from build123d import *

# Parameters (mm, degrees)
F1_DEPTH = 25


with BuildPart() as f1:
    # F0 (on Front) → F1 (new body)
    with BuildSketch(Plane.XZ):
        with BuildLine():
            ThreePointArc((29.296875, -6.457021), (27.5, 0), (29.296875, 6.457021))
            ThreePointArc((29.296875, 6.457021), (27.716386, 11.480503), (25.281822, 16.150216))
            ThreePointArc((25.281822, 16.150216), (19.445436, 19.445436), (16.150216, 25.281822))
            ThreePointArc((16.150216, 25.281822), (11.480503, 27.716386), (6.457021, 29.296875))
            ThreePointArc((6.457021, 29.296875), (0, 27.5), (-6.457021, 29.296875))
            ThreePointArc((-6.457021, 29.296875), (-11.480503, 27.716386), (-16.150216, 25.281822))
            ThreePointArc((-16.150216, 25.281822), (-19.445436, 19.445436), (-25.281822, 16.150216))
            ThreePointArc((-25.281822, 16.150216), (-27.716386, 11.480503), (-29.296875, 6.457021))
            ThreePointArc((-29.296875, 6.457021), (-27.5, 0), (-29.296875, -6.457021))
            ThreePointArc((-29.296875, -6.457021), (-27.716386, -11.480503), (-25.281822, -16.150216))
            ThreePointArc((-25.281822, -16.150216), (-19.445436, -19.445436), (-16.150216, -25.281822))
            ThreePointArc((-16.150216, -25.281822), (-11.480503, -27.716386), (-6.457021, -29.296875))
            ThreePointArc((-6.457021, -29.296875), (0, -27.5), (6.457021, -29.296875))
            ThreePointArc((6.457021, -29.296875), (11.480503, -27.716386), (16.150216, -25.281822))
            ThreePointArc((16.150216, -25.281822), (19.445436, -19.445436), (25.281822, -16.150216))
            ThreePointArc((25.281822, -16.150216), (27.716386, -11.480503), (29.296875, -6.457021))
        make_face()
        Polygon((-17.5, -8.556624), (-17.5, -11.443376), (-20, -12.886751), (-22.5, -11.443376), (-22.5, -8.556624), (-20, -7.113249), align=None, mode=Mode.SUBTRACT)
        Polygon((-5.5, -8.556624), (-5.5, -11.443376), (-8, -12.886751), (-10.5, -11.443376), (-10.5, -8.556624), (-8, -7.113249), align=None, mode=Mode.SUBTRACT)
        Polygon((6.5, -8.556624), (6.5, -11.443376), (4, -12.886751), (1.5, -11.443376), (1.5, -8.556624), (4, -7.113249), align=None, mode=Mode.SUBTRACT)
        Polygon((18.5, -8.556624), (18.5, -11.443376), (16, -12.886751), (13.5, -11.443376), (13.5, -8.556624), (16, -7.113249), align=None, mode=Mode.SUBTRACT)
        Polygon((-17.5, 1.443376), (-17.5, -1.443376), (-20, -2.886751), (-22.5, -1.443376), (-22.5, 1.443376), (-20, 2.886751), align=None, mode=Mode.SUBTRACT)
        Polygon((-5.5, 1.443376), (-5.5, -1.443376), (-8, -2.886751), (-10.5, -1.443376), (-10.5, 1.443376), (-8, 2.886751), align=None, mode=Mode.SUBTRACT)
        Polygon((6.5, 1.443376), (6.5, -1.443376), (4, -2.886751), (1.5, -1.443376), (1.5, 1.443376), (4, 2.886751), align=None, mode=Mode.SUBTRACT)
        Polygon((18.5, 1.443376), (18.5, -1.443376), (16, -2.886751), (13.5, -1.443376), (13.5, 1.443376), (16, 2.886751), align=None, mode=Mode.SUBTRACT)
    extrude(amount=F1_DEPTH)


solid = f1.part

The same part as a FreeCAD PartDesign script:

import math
import FreeCAD as App
import Part
import Sketcher
from FreeCAD import Vector
Q = App.Units.Quantity

doc = App.newDocument("Part")
body = doc.addObject("PartDesign::Body", "Body")

sketch1 = body.newObject("Sketcher::SketchObject", "Sketch")
sketch1.AttachmentSupport = (doc.getObject("XZ_Plane"), [""])
sketch1.MapMode = "FlatFace"
sketch1.addGeometry([
    Part.ArcOfCircle(Part.Circle(Vector(40.000001, 0, 0), Vector(0, 0, 1), 12.500001), math.radians(148.898107), math.radians(211.101893)),
    Part.ArcOfCircle(Part.Circle(Vector(-0.000001, 0, 0), Vector(0, 0, 1), 30.000001), math.radians(12.429258), math.radians(32.570743)),
    Part.ArcOfCircle(Part.Circle(Vector(28.284268, 28.284268, 0), Vector(0, 0, 1), 12.499995), math.radians(-166.101907), math.radians(-103.898093)),
    Part.ArcOfCircle(Part.Circle(Vector(0, -0.000001, 0), Vector(0, 0, 1), 30.000001), math.radians(57.429257), math.radians(77.570742)),
    Part.ArcOfCircle(Part.Circle(Vector(0, 40.000001, 0), Vector(0, 0, 1), 12.500001), math.radians(-121.101893), math.radians(-58.898107)),
    Part.ArcOfCircle(Part.Circle(Vector(0, -0.000001, 0), Vector(0, 0, 1), 30.000001), math.radians(102.429258), math.radians(122.570743)),
    Part.ArcOfCircle(Part.Circle(Vector(-28.284268, 28.284268, 0), Vector(0, 0, 1), 12.499995), math.radians(-76.101907), math.radians(-13.898093)),
    Part.ArcOfCircle(Part.Circle(Vector(0.000001, 0, 0), Vector(0, 0, 1), 30.000001), math.radians(147.429257), math.radians(167.570742)),
    Part.ArcOfCircle(Part.Circle(Vector(-40.000001, 0, 0), Vector(0, 0, 1), 12.500001), math.radians(-31.101893), math.radians(31.101893)),
    Part.ArcOfCircle(Part.Circle(Vector(0.000001, 0, 0), Vector(0, 0, 1), 30.000001), math.radians(-167.570742), math.radians(-147.429257)),
    Part.ArcOfCircle(Part.Circle(Vector(-28.284268, -28.284268, 0), Vector(0, 0, 1), 12.499995), math.radians(13.898093), math.radians(76.101907)),
    Part.ArcOfCircle(Part.Circle(Vector(0, 0.000001, 0), Vector(0, 0, 1), 30.000001), math.radians(-122.570743), math.radians(-102.429258)),
    Part.ArcOfCircle(Part.Circle(Vector(0, -40.000001, 0), Vector(0, 0, 1), 12.500001), math.radians(58.898107), math.radians(121.101893)),
    Part.ArcOfCircle(Part.Circle(Vector(0, 0.000001, 0), Vector(0, 0, 1), 30.000001), math.radians(-77.570742), math.radians(-57.429257)),
    Part.ArcOfCircle(Part.Circle(Vector(28.284268, -28.284268, 0), Vector(0, 0, 1), 12.499995), math.radians(103.898093), math.radians(166.101907)),
    Part.ArcOfCircle(Part.Circle(Vector(-0.000001, 0, 0), Vector(0, 0, 1), 30.000001), math.radians(-32.570743), math.radians(-12.429258)),
    Part.LineSegment(Vector(-20, -7.113249, 0), Vector(-17.5, -8.556624, 0)),
    Part.LineSegment(Vector(-17.5, -8.556624, 0), Vector(-17.5, -11.443376, 0)),
    Part.LineSegment(Vector(-17.5, -11.443376, 0), Vector(-20, -12.886751, 0)),
    Part.LineSegment(Vector(-20, -12.886751, 0), Vector(-22.5, -11.443376, 0)),
    Part.LineSegment(Vector(-22.5, -11.443376, 0), Vector(-22.5, -8.556624, 0)),
    Part.LineSegment(Vector(-22.5, -8.556624, 0), Vector(-20, -7.113249, 0)),
    Part.LineSegment(Vector(-8, -7.113249, 0), Vector(-5.5, -8.556624, 0)),
    Part.LineSegment(Vector(-5.5, -8.556624, 0), Vector(-5.5, -11.443376, 0)),
    Part.LineSegment(Vector(-5.5, -11.443376, 0), Vector(-8, -12.886751, 0)),
    Part.LineSegment(Vector(-8, -12.886751, 0), Vector(-10.5, -11.443376, 0)),
    Part.LineSegment(Vector(-10.5, -11.443376, 0), Vector(-10.5, -8.556624, 0)),
    Part.LineSegment(Vector(-10.5, -8.556624, 0), Vector(-8, -7.113249, 0)),
    Part.LineSegment(Vector(4, -7.113249, 0), Vector(6.5, -8.556624, 0)),
    Part.LineSegment(Vector(6.5, -8.556624, 0), Vector(6.5, -11.443376, 0)),
    Part.LineSegment(Vector(6.5, -11.443376, 0), Vector(4, -12.886751, 0)),
    Part.LineSegment(Vector(4, -12.886751, 0), Vector(1.5, -11.443376, 0)),
    Part.LineSegment(Vector(1.5, -11.443376, 0), Vector(1.5, -8.556624, 0)),
    Part.LineSegment(Vector(1.5, -8.556624, 0), Vector(4, -7.113249, 0)),
    Part.LineSegment(Vector(16, -7.113249, 0), Vector(18.5, -8.556624, 0)),
    Part.LineSegment(Vector(18.5, -8.556624, 0), Vector(18.5, -11.443376, 0)),
    Part.LineSegment(Vector(18.5, -11.443376, 0), Vector(16, -12.886751, 0)),
    Part.LineSegment(Vector(16, -12.886751, 0), Vector(13.5, -11.443376, 0)),
    Part.LineSegment(Vector(13.5, -11.443376, 0), Vector(13.5, -8.556624, 0)),
    Part.LineSegment(Vector(13.5, -8.556624, 0), Vector(16, -7.113249, 0)),
    Part.LineSegment(Vector(-20, 2.886751, 0), Vector(-17.5, 1.443376, 0)),
    Part.LineSegment(Vector(-17.5, 1.443376, 0), Vector(-17.5, -1.443376, 0)),
    Part.LineSegment(Vector(-17.5, -1.443376, 0), Vector(-20, -2.886751, 0)),
    Part.LineSegment(Vector(-20, -2.886751, 0), Vector(-22.5, -1.443376, 0)),
    Part.LineSegment(Vector(-22.5, -1.443376, 0), Vector(-22.5, 1.443376, 0)),
    Part.LineSegment(Vector(-22.5, 1.443376, 0), Vector(-20, 2.886751, 0)),
    Part.LineSegment(Vector(-8, 2.886751, 0), Vector(-5.5, 1.443376, 0)),
    Part.LineSegment(Vector(-5.5, 1.443376, 0), Vector(-5.5, -1.443376, 0)),
    Part.LineSegment(Vector(-5.5, -1.443376, 0), Vector(-8, -2.886751, 0)),
    Part.LineSegment(Vector(-8, -2.886751, 0), Vector(-10.5, -1.443376, 0)),
    Part.LineSegment(Vector(-10.5, -1.443376, 0), Vector(-10.5, 1.443376, 0)),
    Part.LineSegment(Vector(-10.5, 1.443376, 0), Vector(-8, 2.886751, 0)),
    Part.LineSegment(Vector(4, 2.886751, 0), Vector(6.5, 1.443376, 0)),
    Part.LineSegment(Vector(6.5, 1.443376, 0), Vector(6.5, -1.443376, 0)),
    Part.LineSegment(Vector(6.5, -1.443376, 0), Vector(4, -2.886751, 0)),
    Part.LineSegment(Vector(4, -2.886751, 0), Vector(1.5, -1.443376, 0)),
    Part.LineSegment(Vector(1.5, -1.443376, 0), Vector(1.5, 1.443376, 0)),
    Part.LineSegment(Vector(1.5, 1.443376, 0), Vector(4, 2.886751, 0)),
    Part.LineSegment(Vector(16, 2.886751, 0), Vector(18.5, 1.443376, 0)),
    Part.LineSegment(Vector(18.5, 1.443376, 0), Vector(18.5, -1.443376, 0)),
    Part.LineSegment(Vector(18.5, -1.443376, 0), Vector(16, -2.886751, 0)),
    Part.LineSegment(Vector(16, -2.886751, 0), Vector(13.5, -1.443376, 0)),
    Part.LineSegment(Vector(13.5, -1.443376, 0), Vector(13.5, 1.443376, 0)),
    Part.LineSegment(Vector(13.5, 1.443376, 0), Vector(16, 2.886751, 0)),
], False)
sketch1.addConstraint([
    Sketcher.Constraint("Coincident", 0, 1, 1, 1),
    Sketcher.Constraint("Coincident", 1, 2, 2, 2),
    Sketcher.Constraint("Coincident", 2, 1, 3, 1),
    Sketcher.Constraint("Coincident", 3, 2, 4, 2),
    Sketcher.Constraint("Coincident", 4, 1, 5, 1),
    Sketcher.Constraint("Coincident", 5, 2, 6, 2),
    Sketcher.Constraint("Coincident", 6, 1, 7, 1),
    Sketcher.Constraint("Coincident", 7, 2, 8, 2),
    Sketcher.Constraint("Coincident", 8, 1, 9, 1),
    Sketcher.Constraint("Coincident", 9, 2, 10, 2),
    Sketcher.Constraint("Coincident", 10, 1, 11, 1),
    Sketcher.Constraint("Coincident", 11, 2, 12, 2),
    Sketcher.Constraint("Coincident", 12, 1, 13, 1),
    Sketcher.Constraint("Coincident", 13, 2, 14, 2),
    Sketcher.Constraint("Coincident", 14, 1, 15, 1),
    Sketcher.Constraint("Coincident", 15, 2, 0, 2),
    Sketcher.Constraint("Coincident", 16, 2, 17, 1),
    Sketcher.Constraint("Coincident", 17, 2, 18, 1),
    Sketcher.Constraint("Coincident", 18, 2, 19, 1),
    Sketcher.Constraint("Coincident", 19, 2, 20, 1),
    Sketcher.Constraint("Coincident", 20, 2, 21, 1),
    Sketcher.Constraint("Coincident", 21, 2, 16, 1),
    Sketcher.Constraint("Coincident", 22, 2, 23, 1),
    Sketcher.Constraint("Coincident", 23, 2, 24, 1),
    Sketcher.Constraint("Coincident", 24, 2, 25, 1),
    Sketcher.Constraint("Coincident", 25, 2, 26, 1),
    Sketcher.Constraint("Coincident", 26, 2, 27, 1),
    Sketcher.Constraint("Coincident", 27, 2, 22, 1),
    Sketcher.Constraint("Coincident", 28, 2, 29, 1),
    Sketcher.Constraint("Coincident", 29, 2, 30, 1),
    Sketcher.Constraint("Coincident", 30, 2, 31, 1),
    Sketcher.Constraint("Coincident", 31, 2, 32, 1),
    Sketcher.Constraint("Coincident", 32, 2, 33, 1),
    Sketcher.Constraint("Coincident", 33, 2, 28, 1),
    Sketcher.Constraint("Coincident", 34, 2, 35, 1),
    Sketcher.Constraint("Coincident", 35, 2, 36, 1),
    Sketcher.Constraint("Coincident", 36, 2, 37, 1),
    Sketcher.Constraint("Coincident", 37, 2, 38, 1),
    Sketcher.Constraint("Coincident", 38, 2, 39, 1),
    Sketcher.Constraint("Coincident", 39, 2, 34, 1),
    Sketcher.Constraint("Coincident", 40, 2, 41, 1),
    Sketcher.Constraint("Coincident", 41, 2, 42, 1),
    Sketcher.Constraint("Coincident", 42, 2, 43, 1),
    Sketcher.Constraint("Coincident", 43, 2, 44, 1),
    Sketcher.Constraint("Coincident", 44, 2, 45, 1),
    Sketcher.Constraint("Coincident", 45, 2, 40, 1),
    Sketcher.Constraint("Coincident", 46, 2, 47, 1),
    Sketcher.Constraint("Coincident", 47, 2, 48, 1),
    Sketcher.Constraint("Coincident", 48, 2, 49, 1),
    Sketcher.Constraint("Coincident", 49, 2, 50, 1),
    Sketcher.Constraint("Coincident", 50, 2, 51, 1),
    Sketcher.Constraint("Coincident", 51, 2, 46, 1),
    Sketcher.Constraint("Coincident", 52, 2, 53, 1),
    Sketcher.Constraint("Coincident", 53, 2, 54, 1),
    Sketcher.Constraint("Coincident", 54, 2, 55, 1),
    Sketcher.Constraint("Coincident", 55, 2, 56, 1),
    Sketcher.Constraint("Coincident", 56, 2, 57, 1),
    Sketcher.Constraint("Coincident", 57, 2, 52, 1),
    Sketcher.Constraint("Coincident", 58, 2, 59, 1),
    Sketcher.Constraint("Coincident", 59, 2, 60, 1),
    Sketcher.Constraint("Coincident", 60, 2, 61, 1),
    Sketcher.Constraint("Coincident", 61, 2, 62, 1),
    Sketcher.Constraint("Coincident", 62, 2, 63, 1),
    Sketcher.Constraint("Coincident", 63, 2, 58, 1),
    Sketcher.Constraint("Vertical", 17),
    Sketcher.Constraint("Vertical", 20),
    Sketcher.Constraint("Vertical", 23),
    Sketcher.Constraint("Vertical", 26),
    Sketcher.Constraint("Vertical", 29),
    Sketcher.Constraint("Vertical", 32),
    Sketcher.Constraint("Vertical", 35),
    Sketcher.Constraint("Vertical", 38),
    Sketcher.Constraint("Vertical", 41),
    Sketcher.Constraint("Vertical", 44),
    Sketcher.Constraint("Vertical", 47),
    Sketcher.Constraint("Vertical", 50),
    Sketcher.Constraint("Vertical", 53),
    Sketcher.Constraint("Vertical", 56),
    Sketcher.Constraint("Vertical", 59),
    Sketcher.Constraint("Vertical", 62),
    Sketcher.Constraint("Coincident", 1, 3, -1, 1),
    Sketcher.Constraint("Coincident", 3, 3, -1, 1),
    Sketcher.Constraint("Coincident", 5, 3, -1, 1),
    Sketcher.Constraint("Coincident", 7, 3, -1, 1),
    Sketcher.Constraint("Coincident", 9, 3, -1, 1),
    Sketcher.Constraint("Coincident", 11, 3, -1, 1),
    Sketcher.Constraint("Coincident", 13, 3, -1, 1),
    Sketcher.Constraint("Coincident", 15, 3, -1, 1),
    Sketcher.Constraint("Equal", 1, 3),
    Sketcher.Constraint("Equal", 0, 4),
    Sketcher.Constraint("Equal", 3, 5),
    Sketcher.Constraint("Equal", 2, 6),
    Sketcher.Constraint("Equal", 5, 7),
    Sketcher.Constraint("Equal", 4, 8),
    Sketcher.Constraint("Equal", 7, 9),
    Sketcher.Constraint("Equal", 6, 10),
    Sketcher.Constraint("Equal", 9, 11),
    Sketcher.Constraint("Equal", 8, 12),
    Sketcher.Constraint("Equal", 11, 13),
    Sketcher.Constraint("Equal", 10, 14),
    Sketcher.Constraint("Equal", 13, 15),
    Sketcher.Constraint("Symmetric", 0, 3, 8, 3, -1, 1),
    Sketcher.Constraint("Symmetric", 2, 3, 10, 3, -1, 1),
    Sketcher.Constraint("Symmetric", 4, 3, 12, 3, -1, 1),
    Sketcher.Constraint("Symmetric", 6, 3, 14, 3, -1, 1),
    Sketcher.Constraint("Symmetric", 2, 3, 6, 3, -2),
    Sketcher.Constraint("Symmetric", 42, 2, 45, 2, -1),
    Sketcher.Constraint("Symmetric", 48, 2, 51, 2, -1),
    Sketcher.Constraint("Symmetric", 54, 2, 57, 2, -1),
    Sketcher.Constraint("Symmetric", 60, 2, 63, 2, -1),
    Sketcher.Constraint("PointOnObject", 0, 3, -1),
    Sketcher.Constraint("PointOnObject", 4, 3, -2),
    Sketcher.Constraint("Parallel", 16, 19),
    Sketcher.Constraint("Parallel", 18, 21),
    Sketcher.Constraint("Parallel", 19, 22),
    Sketcher.Constraint("Parallel", 21, 24),
    Sketcher.Constraint("Parallel", 22, 25),
    Sketcher.Constraint("Parallel", 24, 27),
    Sketcher.Constraint("Parallel", 25, 28),
    Sketcher.Constraint("Parallel", 27, 30),
    Sketcher.Constraint("Parallel", 28, 31),
    Sketcher.Constraint("Parallel", 30, 33),
    Sketcher.Constraint("Parallel", 31, 34),
    Sketcher.Constraint("Parallel", 33, 36),
    Sketcher.Constraint("Parallel", 34, 37),
    Sketcher.Constraint("Parallel", 36, 39),
    Sketcher.Constraint("Parallel", 37, 40),
    Sketcher.Constraint("Parallel", 39, 42),
    Sketcher.Constraint("Parallel", 40, 43),
    Sketcher.Constraint("Parallel", 42, 45),
    Sketcher.Constraint("Parallel", 43, 46),
    Sketcher.Constraint("Parallel", 45, 48),
    Sketcher.Constraint("Parallel", 46, 49),
    Sketcher.Constraint("Parallel", 48, 51),
    Sketcher.Constraint("Parallel", 49, 52),
    Sketcher.Constraint("Parallel", 51, 54),
    Sketcher.Constraint("Parallel", 52, 55),
    Sketcher.Constraint("Parallel", 54, 57),
    Sketcher.Constraint("Parallel", 55, 58),
    Sketcher.Constraint("Parallel", 57, 60),
    Sketcher.Constraint("Parallel", 58, 61),
    Sketcher.Constraint("Parallel", 60, 63),
    Sketcher.Constraint("Horizontal", 17, 2, 19, 2),
    Sketcher.Constraint("Horizontal", 16, 2, 20, 2),
    Sketcher.Constraint("Horizontal", 20, 2, 22, 2),
    Sketcher.Constraint("Horizontal", 19, 2, 23, 2),
    Sketcher.Constraint("Horizontal", 18, 2, 24, 2),
    Sketcher.Constraint("Horizontal", 23, 2, 25, 2),
    Sketcher.Constraint("Horizontal", 22, 2, 26, 2),
    Sketcher.Constraint("Horizontal", 26, 2, 28, 2),
    Sketcher.Constraint("Horizontal", 25, 2, 29, 2),
    Sketcher.Constraint("Horizontal", 24, 2, 30, 2),
    Sketcher.Constraint("Horizontal", 29, 2, 31, 2),
    Sketcher.Constraint("Horizontal", 28, 2, 32, 2),
    Sketcher.Constraint("Horizontal", 32, 2, 34, 2),
    Sketcher.Constraint("Horizontal", 31, 2, 35, 2),
    Sketcher.Constraint("Horizontal", 30, 2, 36, 2),
    Sketcher.Constraint("Horizontal", 35, 2, 37, 2),
    Sketcher.Constraint("Horizontal", 34, 2, 38, 2),
    Sketcher.Constraint("Horizontal", 41, 2, 43, 2),
    Sketcher.Constraint("Horizontal", 40, 2, 44, 2),
    Sketcher.Constraint("Horizontal", 44, 2, 46, 2),
    Sketcher.Constraint("Horizontal", 42, 2, 48, 2),
    Sketcher.Constraint("Horizontal", 47, 2, 49, 2),
    Sketcher.Constraint("Horizontal", 50, 2, 52, 2),
    Sketcher.Constraint("Horizontal", 48, 2, 54, 2),
    Sketcher.Constraint("Horizontal", 53, 2, 55, 2),
    Sketcher.Constraint("Horizontal", 56, 2, 58, 2),
    Sketcher.Constraint("Horizontal", 54, 2, 60, 2),
    Sketcher.Constraint("Horizontal", 59, 2, 61, 2),
    Sketcher.Constraint("Vertical", 17, 2, 40, 2),
    Sketcher.Constraint("Vertical", 21, 2, 42, 2),
    Sketcher.Constraint("Vertical", 23, 2, 46, 2),
    Sketcher.Constraint("Vertical", 29, 2, 52, 2),
    Sketcher.Constraint("Vertical", 35, 2, 58, 2),
    Sketcher.Constraint("Equal", 38, 41),
    Sketcher.Constraint("Radius", 1, Q("30.000001 mm")),
    Sketcher.Constraint("Radius", 0, Q("12.500001 mm")),
    Sketcher.Constraint("Angle", 16, Q("-29.999988 deg")),
    Sketcher.Constraint("DistanceX", -1, 1, 0, 3, Q("40.000001 mm")),
    Sketcher.Constraint("DistanceY", -1, 1, 4, 3, Q("40.000001 mm")),
    Sketcher.Constraint("DistanceX", 18, 2, -1, 1, Q("20 mm")),
    Sketcher.Constraint("DistanceX", 24, 2, -1, 1, Q("8 mm")),
    Sketcher.Constraint("DistanceX", -1, 1, 30, 2, Q("4 mm")),
    Sketcher.Constraint("DistanceX", -1, 1, 36, 2, Q("16 mm")),
    Sketcher.Constraint("DistanceX", 16, 2, -1, 1, Q("17.5 mm")),
    Sketcher.Constraint("Radius", 2, Q("12.499995 mm")),
    Sketcher.Constraint("DistanceY", 41, 2, 41, 1, Q("2.886752 mm")),
    Sketcher.Constraint("DistanceX", -1, 1, 1, 2, Q("25.281822 mm")),
    Sketcher.Constraint("DistanceY", -1, 1, 5, 2, Q("25.281822 mm")),
    Sketcher.Constraint("DistanceY", 18, 2, -1, 1, Q("12.886751 mm")),
])
pad1 = body.newObject("PartDesign::Pad", "Pad")
pad1.Profile = sketch1
pad1.Length = 25

doc.recompute()
